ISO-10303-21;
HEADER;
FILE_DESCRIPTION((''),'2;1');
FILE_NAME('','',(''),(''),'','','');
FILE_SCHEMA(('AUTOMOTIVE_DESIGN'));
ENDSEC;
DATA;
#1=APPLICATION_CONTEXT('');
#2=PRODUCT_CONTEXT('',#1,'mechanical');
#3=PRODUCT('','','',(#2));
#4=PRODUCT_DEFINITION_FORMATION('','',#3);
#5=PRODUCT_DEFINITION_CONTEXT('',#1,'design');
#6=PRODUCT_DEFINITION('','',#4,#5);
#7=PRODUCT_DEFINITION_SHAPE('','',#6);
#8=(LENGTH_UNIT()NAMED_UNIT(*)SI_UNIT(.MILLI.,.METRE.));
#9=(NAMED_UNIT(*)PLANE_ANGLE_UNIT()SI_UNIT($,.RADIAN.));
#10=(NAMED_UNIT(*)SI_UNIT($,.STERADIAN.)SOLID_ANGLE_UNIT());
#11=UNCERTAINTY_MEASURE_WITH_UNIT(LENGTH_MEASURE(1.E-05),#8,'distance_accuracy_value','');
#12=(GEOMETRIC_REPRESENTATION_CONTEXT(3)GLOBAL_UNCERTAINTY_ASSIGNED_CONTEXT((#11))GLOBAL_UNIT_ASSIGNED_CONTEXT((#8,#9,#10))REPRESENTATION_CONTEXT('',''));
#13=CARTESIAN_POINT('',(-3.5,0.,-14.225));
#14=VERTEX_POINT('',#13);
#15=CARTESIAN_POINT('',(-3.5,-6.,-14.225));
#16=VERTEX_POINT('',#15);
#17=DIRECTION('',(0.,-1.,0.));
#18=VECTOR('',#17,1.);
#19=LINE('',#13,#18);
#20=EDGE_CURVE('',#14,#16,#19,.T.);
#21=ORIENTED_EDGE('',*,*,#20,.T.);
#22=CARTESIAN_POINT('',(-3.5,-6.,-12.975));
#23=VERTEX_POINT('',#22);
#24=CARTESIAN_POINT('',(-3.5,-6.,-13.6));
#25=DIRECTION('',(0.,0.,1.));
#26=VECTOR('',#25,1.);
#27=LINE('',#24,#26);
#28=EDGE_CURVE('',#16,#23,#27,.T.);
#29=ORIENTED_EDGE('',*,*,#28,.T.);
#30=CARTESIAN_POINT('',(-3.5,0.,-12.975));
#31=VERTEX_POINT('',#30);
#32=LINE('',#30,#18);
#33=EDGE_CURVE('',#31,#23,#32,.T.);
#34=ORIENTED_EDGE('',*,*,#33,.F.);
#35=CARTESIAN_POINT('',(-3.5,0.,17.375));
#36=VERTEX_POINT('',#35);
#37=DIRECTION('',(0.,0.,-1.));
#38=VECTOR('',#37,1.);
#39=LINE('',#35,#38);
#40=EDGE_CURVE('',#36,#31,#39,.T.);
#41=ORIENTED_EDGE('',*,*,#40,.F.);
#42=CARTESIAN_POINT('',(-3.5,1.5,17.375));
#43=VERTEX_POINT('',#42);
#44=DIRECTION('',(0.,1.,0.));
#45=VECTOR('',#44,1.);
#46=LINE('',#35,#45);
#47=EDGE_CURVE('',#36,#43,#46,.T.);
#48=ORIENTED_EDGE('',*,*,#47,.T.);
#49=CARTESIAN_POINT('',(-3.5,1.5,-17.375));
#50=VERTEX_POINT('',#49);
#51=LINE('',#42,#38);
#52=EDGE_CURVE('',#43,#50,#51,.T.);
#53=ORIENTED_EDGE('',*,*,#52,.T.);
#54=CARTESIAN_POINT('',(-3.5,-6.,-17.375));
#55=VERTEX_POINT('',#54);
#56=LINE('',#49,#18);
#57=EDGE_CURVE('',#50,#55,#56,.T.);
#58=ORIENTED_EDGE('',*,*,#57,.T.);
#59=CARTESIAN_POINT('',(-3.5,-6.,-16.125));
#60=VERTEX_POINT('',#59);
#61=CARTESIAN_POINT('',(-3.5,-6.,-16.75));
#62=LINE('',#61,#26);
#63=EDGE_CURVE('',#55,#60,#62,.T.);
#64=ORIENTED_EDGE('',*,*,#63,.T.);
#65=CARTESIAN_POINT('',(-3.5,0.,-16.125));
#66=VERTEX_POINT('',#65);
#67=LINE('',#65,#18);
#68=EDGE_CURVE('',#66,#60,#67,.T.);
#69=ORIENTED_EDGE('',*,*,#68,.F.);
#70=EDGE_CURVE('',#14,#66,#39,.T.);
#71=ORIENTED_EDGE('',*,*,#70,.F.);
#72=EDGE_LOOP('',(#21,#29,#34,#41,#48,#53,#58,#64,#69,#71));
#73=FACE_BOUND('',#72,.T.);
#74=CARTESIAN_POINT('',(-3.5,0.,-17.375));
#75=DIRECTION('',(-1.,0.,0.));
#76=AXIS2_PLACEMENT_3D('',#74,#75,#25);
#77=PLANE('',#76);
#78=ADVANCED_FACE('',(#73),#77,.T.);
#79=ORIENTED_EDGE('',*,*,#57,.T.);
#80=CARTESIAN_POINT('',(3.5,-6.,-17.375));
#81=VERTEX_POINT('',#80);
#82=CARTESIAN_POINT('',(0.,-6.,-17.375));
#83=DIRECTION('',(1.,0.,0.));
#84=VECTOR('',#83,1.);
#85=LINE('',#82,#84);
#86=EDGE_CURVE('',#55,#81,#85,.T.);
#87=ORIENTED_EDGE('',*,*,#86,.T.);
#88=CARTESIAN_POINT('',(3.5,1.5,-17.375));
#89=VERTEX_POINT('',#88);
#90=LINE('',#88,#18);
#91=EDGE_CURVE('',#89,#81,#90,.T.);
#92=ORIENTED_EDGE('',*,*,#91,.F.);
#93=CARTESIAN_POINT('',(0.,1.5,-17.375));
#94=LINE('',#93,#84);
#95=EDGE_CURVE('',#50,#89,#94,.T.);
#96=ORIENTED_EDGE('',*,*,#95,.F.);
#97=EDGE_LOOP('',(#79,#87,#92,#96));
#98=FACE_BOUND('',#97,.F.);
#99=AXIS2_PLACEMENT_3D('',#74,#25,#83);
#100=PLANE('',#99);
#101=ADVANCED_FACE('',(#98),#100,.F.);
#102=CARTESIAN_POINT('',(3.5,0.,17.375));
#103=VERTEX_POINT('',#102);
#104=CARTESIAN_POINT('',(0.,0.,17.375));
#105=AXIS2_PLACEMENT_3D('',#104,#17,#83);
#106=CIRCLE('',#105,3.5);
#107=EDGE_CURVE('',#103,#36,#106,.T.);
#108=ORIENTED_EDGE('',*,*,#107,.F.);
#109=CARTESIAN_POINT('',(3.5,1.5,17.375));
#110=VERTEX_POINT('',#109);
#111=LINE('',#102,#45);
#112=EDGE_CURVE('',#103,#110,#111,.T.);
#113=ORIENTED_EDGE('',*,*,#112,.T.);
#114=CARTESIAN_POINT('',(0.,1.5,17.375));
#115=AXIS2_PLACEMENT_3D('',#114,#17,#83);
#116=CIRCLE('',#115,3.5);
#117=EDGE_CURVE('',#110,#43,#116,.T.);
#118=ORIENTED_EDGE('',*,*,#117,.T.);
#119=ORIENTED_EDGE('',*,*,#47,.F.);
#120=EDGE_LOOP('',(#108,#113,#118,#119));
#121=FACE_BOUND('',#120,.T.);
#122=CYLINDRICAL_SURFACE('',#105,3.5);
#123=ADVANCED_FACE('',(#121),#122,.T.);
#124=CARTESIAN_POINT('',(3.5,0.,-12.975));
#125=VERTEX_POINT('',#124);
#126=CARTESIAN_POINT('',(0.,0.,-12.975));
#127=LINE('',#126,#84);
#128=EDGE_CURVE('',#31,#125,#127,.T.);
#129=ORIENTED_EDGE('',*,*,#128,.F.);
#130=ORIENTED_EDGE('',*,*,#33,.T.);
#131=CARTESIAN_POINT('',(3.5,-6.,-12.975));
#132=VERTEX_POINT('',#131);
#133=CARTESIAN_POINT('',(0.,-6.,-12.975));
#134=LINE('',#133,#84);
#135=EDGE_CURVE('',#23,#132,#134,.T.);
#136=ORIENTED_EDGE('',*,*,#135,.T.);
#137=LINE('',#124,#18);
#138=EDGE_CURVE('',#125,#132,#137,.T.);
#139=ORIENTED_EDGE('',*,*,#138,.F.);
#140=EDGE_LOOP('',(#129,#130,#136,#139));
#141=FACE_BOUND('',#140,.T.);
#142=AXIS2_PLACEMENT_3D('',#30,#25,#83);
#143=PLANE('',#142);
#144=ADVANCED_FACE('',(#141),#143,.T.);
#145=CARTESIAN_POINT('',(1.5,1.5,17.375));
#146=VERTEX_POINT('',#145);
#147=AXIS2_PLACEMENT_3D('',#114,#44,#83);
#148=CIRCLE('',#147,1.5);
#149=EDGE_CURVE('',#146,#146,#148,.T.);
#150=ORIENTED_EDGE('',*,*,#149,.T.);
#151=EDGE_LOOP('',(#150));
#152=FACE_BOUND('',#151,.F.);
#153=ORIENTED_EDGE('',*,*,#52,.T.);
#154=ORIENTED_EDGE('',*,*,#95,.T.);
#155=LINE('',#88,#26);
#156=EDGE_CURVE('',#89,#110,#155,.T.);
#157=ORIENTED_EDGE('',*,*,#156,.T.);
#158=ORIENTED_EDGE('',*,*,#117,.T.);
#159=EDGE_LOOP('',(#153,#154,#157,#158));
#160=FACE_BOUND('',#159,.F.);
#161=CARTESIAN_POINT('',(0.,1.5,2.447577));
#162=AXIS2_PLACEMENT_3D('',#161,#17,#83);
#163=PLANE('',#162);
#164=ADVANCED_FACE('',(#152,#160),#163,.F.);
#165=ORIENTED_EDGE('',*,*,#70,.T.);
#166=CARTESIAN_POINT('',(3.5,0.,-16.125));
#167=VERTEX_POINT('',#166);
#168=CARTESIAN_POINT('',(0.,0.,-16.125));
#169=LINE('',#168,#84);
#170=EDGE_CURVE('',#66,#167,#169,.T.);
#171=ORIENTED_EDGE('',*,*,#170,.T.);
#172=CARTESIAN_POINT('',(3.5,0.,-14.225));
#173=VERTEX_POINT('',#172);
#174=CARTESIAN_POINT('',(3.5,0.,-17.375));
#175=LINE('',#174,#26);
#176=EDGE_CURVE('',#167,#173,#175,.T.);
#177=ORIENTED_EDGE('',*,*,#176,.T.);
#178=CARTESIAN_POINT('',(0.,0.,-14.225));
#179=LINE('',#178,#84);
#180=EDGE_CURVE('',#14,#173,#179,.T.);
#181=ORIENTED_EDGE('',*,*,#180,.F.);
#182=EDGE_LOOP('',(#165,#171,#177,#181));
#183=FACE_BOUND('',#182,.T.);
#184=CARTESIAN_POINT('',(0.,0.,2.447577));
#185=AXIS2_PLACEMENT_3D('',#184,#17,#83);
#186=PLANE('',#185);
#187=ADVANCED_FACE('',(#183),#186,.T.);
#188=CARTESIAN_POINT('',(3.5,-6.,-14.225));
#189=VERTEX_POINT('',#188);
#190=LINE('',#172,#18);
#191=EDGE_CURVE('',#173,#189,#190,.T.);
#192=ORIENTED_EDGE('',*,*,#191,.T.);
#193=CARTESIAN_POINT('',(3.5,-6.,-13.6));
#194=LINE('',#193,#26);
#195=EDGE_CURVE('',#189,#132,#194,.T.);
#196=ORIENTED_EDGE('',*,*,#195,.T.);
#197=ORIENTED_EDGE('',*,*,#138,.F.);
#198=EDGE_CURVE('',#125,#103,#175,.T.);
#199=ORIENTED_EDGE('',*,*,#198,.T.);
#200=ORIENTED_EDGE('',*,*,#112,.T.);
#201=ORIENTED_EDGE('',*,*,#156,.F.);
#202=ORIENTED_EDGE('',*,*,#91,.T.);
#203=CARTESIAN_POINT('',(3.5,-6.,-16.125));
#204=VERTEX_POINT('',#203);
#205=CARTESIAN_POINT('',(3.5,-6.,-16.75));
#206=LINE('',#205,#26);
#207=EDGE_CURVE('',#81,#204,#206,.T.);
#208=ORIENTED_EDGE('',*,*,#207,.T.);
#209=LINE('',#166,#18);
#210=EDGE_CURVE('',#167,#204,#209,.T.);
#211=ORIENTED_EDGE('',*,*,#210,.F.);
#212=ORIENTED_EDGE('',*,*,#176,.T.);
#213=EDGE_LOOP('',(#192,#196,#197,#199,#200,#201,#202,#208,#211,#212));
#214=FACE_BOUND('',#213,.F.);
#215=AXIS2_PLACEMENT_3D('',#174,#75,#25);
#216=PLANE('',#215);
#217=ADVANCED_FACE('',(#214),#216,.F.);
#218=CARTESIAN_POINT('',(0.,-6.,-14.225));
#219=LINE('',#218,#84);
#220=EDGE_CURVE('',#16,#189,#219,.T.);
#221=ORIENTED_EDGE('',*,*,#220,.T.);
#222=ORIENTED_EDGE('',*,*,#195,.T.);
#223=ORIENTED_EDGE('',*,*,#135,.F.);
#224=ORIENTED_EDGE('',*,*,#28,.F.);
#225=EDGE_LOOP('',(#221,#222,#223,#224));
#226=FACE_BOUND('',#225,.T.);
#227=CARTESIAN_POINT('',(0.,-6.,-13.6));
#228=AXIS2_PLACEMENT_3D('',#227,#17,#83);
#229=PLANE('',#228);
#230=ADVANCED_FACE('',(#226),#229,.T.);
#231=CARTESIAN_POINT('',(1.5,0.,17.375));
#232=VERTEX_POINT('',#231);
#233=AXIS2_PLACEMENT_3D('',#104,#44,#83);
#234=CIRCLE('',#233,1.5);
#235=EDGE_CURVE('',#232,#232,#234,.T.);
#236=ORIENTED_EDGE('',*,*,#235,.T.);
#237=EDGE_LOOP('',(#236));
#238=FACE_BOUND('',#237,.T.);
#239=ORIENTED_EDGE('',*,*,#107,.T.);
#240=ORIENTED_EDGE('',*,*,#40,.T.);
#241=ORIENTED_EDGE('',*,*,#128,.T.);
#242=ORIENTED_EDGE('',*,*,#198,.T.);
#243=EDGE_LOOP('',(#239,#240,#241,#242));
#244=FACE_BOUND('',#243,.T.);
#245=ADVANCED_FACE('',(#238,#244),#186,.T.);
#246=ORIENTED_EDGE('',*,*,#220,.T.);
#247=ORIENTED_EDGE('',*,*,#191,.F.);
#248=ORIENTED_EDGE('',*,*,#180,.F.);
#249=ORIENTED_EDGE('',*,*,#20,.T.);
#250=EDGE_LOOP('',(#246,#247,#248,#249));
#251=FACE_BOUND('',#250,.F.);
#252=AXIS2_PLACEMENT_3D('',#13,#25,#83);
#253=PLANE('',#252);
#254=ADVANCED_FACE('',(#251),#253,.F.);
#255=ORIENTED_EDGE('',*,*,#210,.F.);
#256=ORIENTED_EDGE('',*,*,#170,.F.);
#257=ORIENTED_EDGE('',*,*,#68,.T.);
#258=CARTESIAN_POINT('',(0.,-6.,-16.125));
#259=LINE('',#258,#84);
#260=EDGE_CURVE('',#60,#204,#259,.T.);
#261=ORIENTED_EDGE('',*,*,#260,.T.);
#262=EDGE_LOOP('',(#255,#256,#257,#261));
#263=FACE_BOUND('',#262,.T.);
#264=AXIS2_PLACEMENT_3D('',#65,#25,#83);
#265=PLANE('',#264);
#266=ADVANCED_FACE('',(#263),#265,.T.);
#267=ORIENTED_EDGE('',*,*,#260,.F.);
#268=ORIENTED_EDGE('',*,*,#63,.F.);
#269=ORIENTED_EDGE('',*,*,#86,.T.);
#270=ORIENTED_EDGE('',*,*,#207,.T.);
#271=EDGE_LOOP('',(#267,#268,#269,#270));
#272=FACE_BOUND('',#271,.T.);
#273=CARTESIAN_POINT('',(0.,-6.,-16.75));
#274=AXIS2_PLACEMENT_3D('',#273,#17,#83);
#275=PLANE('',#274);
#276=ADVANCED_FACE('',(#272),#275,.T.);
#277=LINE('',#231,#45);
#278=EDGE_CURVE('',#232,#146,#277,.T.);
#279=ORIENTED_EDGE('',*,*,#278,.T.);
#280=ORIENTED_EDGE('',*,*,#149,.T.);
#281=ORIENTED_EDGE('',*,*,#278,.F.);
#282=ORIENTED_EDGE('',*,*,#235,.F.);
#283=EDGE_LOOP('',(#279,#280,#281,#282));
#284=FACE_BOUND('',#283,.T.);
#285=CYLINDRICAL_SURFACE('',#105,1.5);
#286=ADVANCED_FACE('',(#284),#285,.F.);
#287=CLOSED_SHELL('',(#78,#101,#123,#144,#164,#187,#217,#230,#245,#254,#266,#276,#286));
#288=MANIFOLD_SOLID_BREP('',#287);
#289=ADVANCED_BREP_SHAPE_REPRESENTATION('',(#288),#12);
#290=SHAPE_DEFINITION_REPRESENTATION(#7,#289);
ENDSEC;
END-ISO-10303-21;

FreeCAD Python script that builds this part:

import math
import FreeCAD as App
import Part
import Sketcher
from FreeCAD import Vector

doc = App.newDocument("Part")
params = doc.addObject("Spreadsheet::Sheet", "Params")
for row, (alias, value) in enumerate([
    ("sketch1_diameter", "3 mm"),
    ("sketch1_radius", "3.5 mm"),
    ("sketch1_height", "34.75 mm"),
    ("pad1_length", "1.5 mm"),
    ("sketch2_width", "7 mm"),
    ("sketch2_height", "1.25 mm"),
    ("pad2_length", "6 mm"),
], start=1):
    params.set(f"A{row}", alias)
    params.set(f"B{row}", "=" + value)
    params.setAlias(f"B{row}", alias)

body = doc.addObject("PartDesign::Body", "Body")

# Sketch on XZ plane
sketch1 = doc.addObject("Sketcher::SketchObject", "Sketch")
body.addObject(sketch1)
sketch1.AttachmentSupport = (doc.XZ_Plane, [""])
sketch1.MapMode = "FlatFace"
sketch1.addGeometry([
    Part.ArcOfCircle(Part.Circle(Vector(0, 17.4, 0), Vector(0, 0, 1), 3.5), math.radians(0), math.radians(180)),  # 0
    Part.LineSegment(Vector(-3.5, 17.4, 0), Vector(-3.5, -17.4, 0)),  # 1
    Part.LineSegment(Vector(-3.5, -17.4, 0), Vector(3.5, -17.4, 0)),  # 2
    Part.LineSegment(Vector(3.5, -17.4, 0), Vector(3.5, 17.4, 0)),  # 3
    Part.Circle(Vector(0, 17.4, 0), Vector(0, 0, 1), 1.5),  # 4
], False)
sketch1.addConstraint([
    Sketcher.Constraint("Tangent", 0, 2, 1, 1),
    Sketcher.Constraint("Coincident", 1, 2, 2, 1),
    Sketcher.Constraint("Coincident", 2, 2, 3, 1),
    Sketcher.Constraint("Tangent", 3, 2, 0, 1),
    Sketcher.Constraint("Vertical", 1),
    Sketcher.Constraint("Horizontal", 2),
    Sketcher.Constraint("Vertical", 3),
    Sketcher.Constraint("Coincident", 4, 3, 0, 3),
    Sketcher.Constraint("Symmetric", 0, 2, 2, 2, -1, 1),
    Sketcher.Constraint("Diameter", 4, 3.0),
    Sketcher.Constraint("Radius", 0, 3.5),
    Sketcher.Constraint("DistanceY", 1, 2, 1, 1, 34.75),
])
sketch1.setExpression("Constraints[9]", "Params.sketch1_diameter")
sketch1.setExpression("Constraints[10]", "Params.sketch1_radius")
sketch1.setExpression("Constraints[11]", "Params.sketch1_height")
pad1 = doc.addObject("PartDesign::Pad", "Pad")
body.addObject(pad1)
pad1.Profile = sketch1
pad1.setExpression("Length", "Params.pad1_length")
pad1.Reversed = True

# Sketch on XZ plane
sketch2 = doc.addObject("Sketcher::SketchObject", "Sketch001")
body.addObject(sketch2)
sketch2.AttachmentSupport = (doc.XZ_Plane, [""])
sketch2.MapMode = "FlatFace"
sketch2.addGeometry([
    Part.LineSegment(Vector(-3.5, -16.1, 0), Vector(-3.5, -17.4, 0)),  # 0
    Part.LineSegment(Vector(-3.5, -17.4, 0), Vector(3.5, -17.4, 0)),  # 1
    Part.LineSegment(Vector(3.5, -17.4, 0), Vector(3.5, -16.1, 0)),  # 2
    Part.LineSegment(Vector(3.5, -16.1, 0), Vector(-3.5, -16.1, 0)),  # 3
    Part.LineSegment(Vector(-3.5, -13, 0), Vector(-3.5, -14.2, 0)),  # 4
    Part.LineSegment(Vector(-3.5, -14.2, 0), Vector(3.5, -14.2, 0)),  # 5
    Part.LineSegment(Vector(3.5, -14.2, 0), Vector(3.5, -13, 0)),  # 6
    Part.LineSegment(Vector(3.5, -13, 0), Vector(-3.5, -13, 0)),  # 7
], False)
sketch2.addConstraint([
    Sketcher.Constraint("Coincident", 0, 2, 1, 1),
    Sketcher.Constraint("Coincident", 1, 2, 2, 1),
    Sketcher.Constraint("Coincident", 2, 2, 3, 1),
    Sketcher.Constraint("Coincident", 3, 2, 0, 1),
    Sketcher.Constraint("Coincident", 4, 2, 5, 1),
    Sketcher.Constraint("Coincident", 5, 2, 6, 1),
    Sketcher.Constraint("Coincident", 6, 2, 7, 1),
    Sketcher.Constraint("Coincident", 7, 2, 4, 1),
    Sketcher.Constraint("Vertical", 0),
    Sketcher.Constraint("Horizontal", 1),
    Sketcher.Constraint("Vertical", 2),
    Sketcher.Constraint("Horizontal", 3),
    Sketcher.Constraint("Vertical", 4),
    Sketcher.Constraint("Horizontal", 5),
    Sketcher.Constraint("Vertical", 6),
    Sketcher.Constraint("Horizontal", 7),
    Sketcher.Constraint("Vertical", 3, 2, 4, 2),
    Sketcher.Constraint("Vertical", 2, 2, 5, 2),
    Sketcher.Constraint("Equal", 2, 4),
    Sketcher.Constraint("DistanceX", 1, 1, 1, 2, 7.0),
    Sketcher.Constraint("DistanceY", 0, 2, 0, 1, 1.25),
    Sketcher.Constraint("DistanceX", 0, 2, -1, 1, 3.5),
    Sketcher.Constraint("DistanceY", 3, 2, 4, 2, 1.9),
    Sketcher.Constraint("DistanceY", 0, 2, -1, 1, 17.375),
])
sketch2.setExpression("Constraints[19]", "Params.sketch2_width")
sketch2.setExpression("Constraints[20]", "Params.sketch2_height")
pad2 = doc.addObject("PartDesign::Pad", "Pad001")
body.addObject(pad2)
pad2.Profile = sketch2
pad2.setExpression("Length", "Params.pad2_length")

doc.recompute()
